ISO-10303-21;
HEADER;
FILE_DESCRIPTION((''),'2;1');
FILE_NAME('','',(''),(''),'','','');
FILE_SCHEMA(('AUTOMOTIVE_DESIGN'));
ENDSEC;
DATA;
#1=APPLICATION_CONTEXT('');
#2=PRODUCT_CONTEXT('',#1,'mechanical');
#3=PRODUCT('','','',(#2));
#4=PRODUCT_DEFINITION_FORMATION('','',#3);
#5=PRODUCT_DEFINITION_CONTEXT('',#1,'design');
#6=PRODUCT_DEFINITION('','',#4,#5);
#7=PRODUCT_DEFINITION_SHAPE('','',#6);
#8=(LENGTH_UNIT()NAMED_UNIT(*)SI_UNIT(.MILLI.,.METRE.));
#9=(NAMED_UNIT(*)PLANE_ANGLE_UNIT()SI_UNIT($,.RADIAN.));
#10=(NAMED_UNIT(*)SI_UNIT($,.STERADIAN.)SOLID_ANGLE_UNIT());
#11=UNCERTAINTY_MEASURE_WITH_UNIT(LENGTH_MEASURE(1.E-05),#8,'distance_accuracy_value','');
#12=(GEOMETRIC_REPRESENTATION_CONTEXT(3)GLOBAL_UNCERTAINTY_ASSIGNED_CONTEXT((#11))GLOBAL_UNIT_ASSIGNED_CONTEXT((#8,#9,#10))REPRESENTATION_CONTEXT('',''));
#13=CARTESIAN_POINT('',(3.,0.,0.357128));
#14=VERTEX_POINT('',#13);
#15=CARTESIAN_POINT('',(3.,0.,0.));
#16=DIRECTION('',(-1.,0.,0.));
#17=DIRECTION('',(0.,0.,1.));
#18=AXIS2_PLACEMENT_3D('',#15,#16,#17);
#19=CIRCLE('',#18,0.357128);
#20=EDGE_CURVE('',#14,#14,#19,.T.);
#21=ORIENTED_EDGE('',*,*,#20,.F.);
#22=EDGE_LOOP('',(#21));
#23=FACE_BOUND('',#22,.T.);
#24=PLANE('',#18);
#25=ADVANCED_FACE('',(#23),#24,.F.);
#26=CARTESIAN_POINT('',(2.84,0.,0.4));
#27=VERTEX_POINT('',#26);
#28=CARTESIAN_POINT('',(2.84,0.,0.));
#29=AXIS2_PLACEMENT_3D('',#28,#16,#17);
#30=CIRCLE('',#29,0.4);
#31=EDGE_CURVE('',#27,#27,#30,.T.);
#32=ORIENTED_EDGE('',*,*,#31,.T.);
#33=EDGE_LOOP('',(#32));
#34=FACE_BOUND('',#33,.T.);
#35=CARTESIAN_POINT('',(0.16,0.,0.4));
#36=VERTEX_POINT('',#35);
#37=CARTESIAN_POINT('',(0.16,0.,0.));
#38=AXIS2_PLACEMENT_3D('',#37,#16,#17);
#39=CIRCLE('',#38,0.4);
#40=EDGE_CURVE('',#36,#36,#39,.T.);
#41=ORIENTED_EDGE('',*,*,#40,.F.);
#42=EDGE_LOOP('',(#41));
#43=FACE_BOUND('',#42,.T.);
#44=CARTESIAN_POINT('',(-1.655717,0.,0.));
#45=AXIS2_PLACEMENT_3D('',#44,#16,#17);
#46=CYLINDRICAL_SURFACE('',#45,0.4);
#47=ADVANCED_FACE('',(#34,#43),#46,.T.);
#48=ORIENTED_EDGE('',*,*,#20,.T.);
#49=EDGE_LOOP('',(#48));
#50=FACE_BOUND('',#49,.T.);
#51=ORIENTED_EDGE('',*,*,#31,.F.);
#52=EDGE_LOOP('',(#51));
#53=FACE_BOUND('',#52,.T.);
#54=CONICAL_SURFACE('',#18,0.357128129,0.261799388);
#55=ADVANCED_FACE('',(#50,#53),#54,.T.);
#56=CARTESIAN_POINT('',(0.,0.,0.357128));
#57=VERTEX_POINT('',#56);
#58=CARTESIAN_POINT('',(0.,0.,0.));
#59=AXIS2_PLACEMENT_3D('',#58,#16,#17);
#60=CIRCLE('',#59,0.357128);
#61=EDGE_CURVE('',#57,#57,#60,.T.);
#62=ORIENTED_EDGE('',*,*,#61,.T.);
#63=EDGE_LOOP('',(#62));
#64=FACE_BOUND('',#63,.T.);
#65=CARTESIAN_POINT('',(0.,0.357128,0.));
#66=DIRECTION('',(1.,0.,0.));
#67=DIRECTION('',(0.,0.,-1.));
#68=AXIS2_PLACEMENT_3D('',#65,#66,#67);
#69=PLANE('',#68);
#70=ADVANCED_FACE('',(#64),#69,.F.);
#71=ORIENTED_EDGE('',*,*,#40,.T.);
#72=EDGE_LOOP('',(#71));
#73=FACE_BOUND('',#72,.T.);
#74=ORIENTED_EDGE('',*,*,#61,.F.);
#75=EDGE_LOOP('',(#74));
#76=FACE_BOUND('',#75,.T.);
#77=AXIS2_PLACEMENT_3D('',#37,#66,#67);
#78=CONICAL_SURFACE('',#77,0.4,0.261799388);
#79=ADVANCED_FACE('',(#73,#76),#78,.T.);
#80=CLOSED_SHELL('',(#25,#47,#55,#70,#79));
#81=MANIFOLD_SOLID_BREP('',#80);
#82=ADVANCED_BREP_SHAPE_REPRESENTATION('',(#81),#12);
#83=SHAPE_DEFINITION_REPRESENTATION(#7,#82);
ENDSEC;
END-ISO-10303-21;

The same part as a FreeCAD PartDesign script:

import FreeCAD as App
import Part
import Sketcher
from FreeCAD import Vector
Q = App.Units.Quantity

doc = App.newDocument("Part")
body = doc.addObject("PartDesign::Body", "Body")

# Sketch on XY plane
sketch1 = body.newObject("Sketcher::SketchObject", "Sketch")
sketch1.AttachmentSupport = (doc.getObject("XY_Plane"), [""])
sketch1.MapMode = "FlatFace"
sketch1.addGeometry([
    Part.LineSegment(Vector(0, 0, 0), Vector(3, 0, 0)),  # 0
    Part.LineSegment(Vector(3, 0, 0), Vector(3, 0.357128, 0)),  # 1
    Part.LineSegment(Vector(3, 0.357128, 0), Vector(2.84, 0.4, 0)),  # 2
    Part.LineSegment(Vector(2.84, 0.4, 0), Vector(0.16, 0.4, 0)),  # 3
    Part.LineSegment(Vector(0.16, 0.4, 0), Vector(0, 0.357128, 0)),  # 4
    Part.LineSegment(Vector(0, 0.357128, 0), Vector(0, 0, 0)),  # 5
], False)
sketch1.addConstraint([
    Sketcher.Constraint("Coincident", 0, 2, 1, 1),
    Sketcher.Constraint("Coincident", 1, 2, 2, 1),
    Sketcher.Constraint("Coincident", 2, 2, 3, 1),
    Sketcher.Constraint("Coincident", 3, 2, 4, 1),
    Sketcher.Constraint("Coincident", 4, 2, 5, 1),
    Sketcher.Constraint("Coincident", 5, 2, 0, 1),
    Sketcher.Constraint("Horizontal", 0),
    Sketcher.Constraint("Vertical", 1),
    Sketcher.Constraint("Horizontal", 3),
    Sketcher.Constraint("Vertical", 5),
    Sketcher.Constraint("Coincident", 5, 2, -1, 1),
    Sketcher.Constraint("Horizontal", 1, 2, 4, 2),
    Sketcher.Constraint("Equal", 2, 4),
    Sketcher.Constraint("DistanceX", 0, 1, 0, 2, Q("3 mm")),
    Sketcher.Constraint("Angle", 2, Q("165 deg")),
    Sketcher.Constraint("DistanceX", 3, 2, 3, 1, Q("2.68 mm")),
    Sketcher.Constraint("DistanceY", -1, 1, 2, 2, Q("0.4 mm")),
])
revolution = body.newObject("PartDesign::Revolution", "Revolution")
revolution.Profile = sketch1
revolution.ReferenceAxis = (sketch1, ["H_Axis"])
revolution.Angle = 360

doc.recompute()
